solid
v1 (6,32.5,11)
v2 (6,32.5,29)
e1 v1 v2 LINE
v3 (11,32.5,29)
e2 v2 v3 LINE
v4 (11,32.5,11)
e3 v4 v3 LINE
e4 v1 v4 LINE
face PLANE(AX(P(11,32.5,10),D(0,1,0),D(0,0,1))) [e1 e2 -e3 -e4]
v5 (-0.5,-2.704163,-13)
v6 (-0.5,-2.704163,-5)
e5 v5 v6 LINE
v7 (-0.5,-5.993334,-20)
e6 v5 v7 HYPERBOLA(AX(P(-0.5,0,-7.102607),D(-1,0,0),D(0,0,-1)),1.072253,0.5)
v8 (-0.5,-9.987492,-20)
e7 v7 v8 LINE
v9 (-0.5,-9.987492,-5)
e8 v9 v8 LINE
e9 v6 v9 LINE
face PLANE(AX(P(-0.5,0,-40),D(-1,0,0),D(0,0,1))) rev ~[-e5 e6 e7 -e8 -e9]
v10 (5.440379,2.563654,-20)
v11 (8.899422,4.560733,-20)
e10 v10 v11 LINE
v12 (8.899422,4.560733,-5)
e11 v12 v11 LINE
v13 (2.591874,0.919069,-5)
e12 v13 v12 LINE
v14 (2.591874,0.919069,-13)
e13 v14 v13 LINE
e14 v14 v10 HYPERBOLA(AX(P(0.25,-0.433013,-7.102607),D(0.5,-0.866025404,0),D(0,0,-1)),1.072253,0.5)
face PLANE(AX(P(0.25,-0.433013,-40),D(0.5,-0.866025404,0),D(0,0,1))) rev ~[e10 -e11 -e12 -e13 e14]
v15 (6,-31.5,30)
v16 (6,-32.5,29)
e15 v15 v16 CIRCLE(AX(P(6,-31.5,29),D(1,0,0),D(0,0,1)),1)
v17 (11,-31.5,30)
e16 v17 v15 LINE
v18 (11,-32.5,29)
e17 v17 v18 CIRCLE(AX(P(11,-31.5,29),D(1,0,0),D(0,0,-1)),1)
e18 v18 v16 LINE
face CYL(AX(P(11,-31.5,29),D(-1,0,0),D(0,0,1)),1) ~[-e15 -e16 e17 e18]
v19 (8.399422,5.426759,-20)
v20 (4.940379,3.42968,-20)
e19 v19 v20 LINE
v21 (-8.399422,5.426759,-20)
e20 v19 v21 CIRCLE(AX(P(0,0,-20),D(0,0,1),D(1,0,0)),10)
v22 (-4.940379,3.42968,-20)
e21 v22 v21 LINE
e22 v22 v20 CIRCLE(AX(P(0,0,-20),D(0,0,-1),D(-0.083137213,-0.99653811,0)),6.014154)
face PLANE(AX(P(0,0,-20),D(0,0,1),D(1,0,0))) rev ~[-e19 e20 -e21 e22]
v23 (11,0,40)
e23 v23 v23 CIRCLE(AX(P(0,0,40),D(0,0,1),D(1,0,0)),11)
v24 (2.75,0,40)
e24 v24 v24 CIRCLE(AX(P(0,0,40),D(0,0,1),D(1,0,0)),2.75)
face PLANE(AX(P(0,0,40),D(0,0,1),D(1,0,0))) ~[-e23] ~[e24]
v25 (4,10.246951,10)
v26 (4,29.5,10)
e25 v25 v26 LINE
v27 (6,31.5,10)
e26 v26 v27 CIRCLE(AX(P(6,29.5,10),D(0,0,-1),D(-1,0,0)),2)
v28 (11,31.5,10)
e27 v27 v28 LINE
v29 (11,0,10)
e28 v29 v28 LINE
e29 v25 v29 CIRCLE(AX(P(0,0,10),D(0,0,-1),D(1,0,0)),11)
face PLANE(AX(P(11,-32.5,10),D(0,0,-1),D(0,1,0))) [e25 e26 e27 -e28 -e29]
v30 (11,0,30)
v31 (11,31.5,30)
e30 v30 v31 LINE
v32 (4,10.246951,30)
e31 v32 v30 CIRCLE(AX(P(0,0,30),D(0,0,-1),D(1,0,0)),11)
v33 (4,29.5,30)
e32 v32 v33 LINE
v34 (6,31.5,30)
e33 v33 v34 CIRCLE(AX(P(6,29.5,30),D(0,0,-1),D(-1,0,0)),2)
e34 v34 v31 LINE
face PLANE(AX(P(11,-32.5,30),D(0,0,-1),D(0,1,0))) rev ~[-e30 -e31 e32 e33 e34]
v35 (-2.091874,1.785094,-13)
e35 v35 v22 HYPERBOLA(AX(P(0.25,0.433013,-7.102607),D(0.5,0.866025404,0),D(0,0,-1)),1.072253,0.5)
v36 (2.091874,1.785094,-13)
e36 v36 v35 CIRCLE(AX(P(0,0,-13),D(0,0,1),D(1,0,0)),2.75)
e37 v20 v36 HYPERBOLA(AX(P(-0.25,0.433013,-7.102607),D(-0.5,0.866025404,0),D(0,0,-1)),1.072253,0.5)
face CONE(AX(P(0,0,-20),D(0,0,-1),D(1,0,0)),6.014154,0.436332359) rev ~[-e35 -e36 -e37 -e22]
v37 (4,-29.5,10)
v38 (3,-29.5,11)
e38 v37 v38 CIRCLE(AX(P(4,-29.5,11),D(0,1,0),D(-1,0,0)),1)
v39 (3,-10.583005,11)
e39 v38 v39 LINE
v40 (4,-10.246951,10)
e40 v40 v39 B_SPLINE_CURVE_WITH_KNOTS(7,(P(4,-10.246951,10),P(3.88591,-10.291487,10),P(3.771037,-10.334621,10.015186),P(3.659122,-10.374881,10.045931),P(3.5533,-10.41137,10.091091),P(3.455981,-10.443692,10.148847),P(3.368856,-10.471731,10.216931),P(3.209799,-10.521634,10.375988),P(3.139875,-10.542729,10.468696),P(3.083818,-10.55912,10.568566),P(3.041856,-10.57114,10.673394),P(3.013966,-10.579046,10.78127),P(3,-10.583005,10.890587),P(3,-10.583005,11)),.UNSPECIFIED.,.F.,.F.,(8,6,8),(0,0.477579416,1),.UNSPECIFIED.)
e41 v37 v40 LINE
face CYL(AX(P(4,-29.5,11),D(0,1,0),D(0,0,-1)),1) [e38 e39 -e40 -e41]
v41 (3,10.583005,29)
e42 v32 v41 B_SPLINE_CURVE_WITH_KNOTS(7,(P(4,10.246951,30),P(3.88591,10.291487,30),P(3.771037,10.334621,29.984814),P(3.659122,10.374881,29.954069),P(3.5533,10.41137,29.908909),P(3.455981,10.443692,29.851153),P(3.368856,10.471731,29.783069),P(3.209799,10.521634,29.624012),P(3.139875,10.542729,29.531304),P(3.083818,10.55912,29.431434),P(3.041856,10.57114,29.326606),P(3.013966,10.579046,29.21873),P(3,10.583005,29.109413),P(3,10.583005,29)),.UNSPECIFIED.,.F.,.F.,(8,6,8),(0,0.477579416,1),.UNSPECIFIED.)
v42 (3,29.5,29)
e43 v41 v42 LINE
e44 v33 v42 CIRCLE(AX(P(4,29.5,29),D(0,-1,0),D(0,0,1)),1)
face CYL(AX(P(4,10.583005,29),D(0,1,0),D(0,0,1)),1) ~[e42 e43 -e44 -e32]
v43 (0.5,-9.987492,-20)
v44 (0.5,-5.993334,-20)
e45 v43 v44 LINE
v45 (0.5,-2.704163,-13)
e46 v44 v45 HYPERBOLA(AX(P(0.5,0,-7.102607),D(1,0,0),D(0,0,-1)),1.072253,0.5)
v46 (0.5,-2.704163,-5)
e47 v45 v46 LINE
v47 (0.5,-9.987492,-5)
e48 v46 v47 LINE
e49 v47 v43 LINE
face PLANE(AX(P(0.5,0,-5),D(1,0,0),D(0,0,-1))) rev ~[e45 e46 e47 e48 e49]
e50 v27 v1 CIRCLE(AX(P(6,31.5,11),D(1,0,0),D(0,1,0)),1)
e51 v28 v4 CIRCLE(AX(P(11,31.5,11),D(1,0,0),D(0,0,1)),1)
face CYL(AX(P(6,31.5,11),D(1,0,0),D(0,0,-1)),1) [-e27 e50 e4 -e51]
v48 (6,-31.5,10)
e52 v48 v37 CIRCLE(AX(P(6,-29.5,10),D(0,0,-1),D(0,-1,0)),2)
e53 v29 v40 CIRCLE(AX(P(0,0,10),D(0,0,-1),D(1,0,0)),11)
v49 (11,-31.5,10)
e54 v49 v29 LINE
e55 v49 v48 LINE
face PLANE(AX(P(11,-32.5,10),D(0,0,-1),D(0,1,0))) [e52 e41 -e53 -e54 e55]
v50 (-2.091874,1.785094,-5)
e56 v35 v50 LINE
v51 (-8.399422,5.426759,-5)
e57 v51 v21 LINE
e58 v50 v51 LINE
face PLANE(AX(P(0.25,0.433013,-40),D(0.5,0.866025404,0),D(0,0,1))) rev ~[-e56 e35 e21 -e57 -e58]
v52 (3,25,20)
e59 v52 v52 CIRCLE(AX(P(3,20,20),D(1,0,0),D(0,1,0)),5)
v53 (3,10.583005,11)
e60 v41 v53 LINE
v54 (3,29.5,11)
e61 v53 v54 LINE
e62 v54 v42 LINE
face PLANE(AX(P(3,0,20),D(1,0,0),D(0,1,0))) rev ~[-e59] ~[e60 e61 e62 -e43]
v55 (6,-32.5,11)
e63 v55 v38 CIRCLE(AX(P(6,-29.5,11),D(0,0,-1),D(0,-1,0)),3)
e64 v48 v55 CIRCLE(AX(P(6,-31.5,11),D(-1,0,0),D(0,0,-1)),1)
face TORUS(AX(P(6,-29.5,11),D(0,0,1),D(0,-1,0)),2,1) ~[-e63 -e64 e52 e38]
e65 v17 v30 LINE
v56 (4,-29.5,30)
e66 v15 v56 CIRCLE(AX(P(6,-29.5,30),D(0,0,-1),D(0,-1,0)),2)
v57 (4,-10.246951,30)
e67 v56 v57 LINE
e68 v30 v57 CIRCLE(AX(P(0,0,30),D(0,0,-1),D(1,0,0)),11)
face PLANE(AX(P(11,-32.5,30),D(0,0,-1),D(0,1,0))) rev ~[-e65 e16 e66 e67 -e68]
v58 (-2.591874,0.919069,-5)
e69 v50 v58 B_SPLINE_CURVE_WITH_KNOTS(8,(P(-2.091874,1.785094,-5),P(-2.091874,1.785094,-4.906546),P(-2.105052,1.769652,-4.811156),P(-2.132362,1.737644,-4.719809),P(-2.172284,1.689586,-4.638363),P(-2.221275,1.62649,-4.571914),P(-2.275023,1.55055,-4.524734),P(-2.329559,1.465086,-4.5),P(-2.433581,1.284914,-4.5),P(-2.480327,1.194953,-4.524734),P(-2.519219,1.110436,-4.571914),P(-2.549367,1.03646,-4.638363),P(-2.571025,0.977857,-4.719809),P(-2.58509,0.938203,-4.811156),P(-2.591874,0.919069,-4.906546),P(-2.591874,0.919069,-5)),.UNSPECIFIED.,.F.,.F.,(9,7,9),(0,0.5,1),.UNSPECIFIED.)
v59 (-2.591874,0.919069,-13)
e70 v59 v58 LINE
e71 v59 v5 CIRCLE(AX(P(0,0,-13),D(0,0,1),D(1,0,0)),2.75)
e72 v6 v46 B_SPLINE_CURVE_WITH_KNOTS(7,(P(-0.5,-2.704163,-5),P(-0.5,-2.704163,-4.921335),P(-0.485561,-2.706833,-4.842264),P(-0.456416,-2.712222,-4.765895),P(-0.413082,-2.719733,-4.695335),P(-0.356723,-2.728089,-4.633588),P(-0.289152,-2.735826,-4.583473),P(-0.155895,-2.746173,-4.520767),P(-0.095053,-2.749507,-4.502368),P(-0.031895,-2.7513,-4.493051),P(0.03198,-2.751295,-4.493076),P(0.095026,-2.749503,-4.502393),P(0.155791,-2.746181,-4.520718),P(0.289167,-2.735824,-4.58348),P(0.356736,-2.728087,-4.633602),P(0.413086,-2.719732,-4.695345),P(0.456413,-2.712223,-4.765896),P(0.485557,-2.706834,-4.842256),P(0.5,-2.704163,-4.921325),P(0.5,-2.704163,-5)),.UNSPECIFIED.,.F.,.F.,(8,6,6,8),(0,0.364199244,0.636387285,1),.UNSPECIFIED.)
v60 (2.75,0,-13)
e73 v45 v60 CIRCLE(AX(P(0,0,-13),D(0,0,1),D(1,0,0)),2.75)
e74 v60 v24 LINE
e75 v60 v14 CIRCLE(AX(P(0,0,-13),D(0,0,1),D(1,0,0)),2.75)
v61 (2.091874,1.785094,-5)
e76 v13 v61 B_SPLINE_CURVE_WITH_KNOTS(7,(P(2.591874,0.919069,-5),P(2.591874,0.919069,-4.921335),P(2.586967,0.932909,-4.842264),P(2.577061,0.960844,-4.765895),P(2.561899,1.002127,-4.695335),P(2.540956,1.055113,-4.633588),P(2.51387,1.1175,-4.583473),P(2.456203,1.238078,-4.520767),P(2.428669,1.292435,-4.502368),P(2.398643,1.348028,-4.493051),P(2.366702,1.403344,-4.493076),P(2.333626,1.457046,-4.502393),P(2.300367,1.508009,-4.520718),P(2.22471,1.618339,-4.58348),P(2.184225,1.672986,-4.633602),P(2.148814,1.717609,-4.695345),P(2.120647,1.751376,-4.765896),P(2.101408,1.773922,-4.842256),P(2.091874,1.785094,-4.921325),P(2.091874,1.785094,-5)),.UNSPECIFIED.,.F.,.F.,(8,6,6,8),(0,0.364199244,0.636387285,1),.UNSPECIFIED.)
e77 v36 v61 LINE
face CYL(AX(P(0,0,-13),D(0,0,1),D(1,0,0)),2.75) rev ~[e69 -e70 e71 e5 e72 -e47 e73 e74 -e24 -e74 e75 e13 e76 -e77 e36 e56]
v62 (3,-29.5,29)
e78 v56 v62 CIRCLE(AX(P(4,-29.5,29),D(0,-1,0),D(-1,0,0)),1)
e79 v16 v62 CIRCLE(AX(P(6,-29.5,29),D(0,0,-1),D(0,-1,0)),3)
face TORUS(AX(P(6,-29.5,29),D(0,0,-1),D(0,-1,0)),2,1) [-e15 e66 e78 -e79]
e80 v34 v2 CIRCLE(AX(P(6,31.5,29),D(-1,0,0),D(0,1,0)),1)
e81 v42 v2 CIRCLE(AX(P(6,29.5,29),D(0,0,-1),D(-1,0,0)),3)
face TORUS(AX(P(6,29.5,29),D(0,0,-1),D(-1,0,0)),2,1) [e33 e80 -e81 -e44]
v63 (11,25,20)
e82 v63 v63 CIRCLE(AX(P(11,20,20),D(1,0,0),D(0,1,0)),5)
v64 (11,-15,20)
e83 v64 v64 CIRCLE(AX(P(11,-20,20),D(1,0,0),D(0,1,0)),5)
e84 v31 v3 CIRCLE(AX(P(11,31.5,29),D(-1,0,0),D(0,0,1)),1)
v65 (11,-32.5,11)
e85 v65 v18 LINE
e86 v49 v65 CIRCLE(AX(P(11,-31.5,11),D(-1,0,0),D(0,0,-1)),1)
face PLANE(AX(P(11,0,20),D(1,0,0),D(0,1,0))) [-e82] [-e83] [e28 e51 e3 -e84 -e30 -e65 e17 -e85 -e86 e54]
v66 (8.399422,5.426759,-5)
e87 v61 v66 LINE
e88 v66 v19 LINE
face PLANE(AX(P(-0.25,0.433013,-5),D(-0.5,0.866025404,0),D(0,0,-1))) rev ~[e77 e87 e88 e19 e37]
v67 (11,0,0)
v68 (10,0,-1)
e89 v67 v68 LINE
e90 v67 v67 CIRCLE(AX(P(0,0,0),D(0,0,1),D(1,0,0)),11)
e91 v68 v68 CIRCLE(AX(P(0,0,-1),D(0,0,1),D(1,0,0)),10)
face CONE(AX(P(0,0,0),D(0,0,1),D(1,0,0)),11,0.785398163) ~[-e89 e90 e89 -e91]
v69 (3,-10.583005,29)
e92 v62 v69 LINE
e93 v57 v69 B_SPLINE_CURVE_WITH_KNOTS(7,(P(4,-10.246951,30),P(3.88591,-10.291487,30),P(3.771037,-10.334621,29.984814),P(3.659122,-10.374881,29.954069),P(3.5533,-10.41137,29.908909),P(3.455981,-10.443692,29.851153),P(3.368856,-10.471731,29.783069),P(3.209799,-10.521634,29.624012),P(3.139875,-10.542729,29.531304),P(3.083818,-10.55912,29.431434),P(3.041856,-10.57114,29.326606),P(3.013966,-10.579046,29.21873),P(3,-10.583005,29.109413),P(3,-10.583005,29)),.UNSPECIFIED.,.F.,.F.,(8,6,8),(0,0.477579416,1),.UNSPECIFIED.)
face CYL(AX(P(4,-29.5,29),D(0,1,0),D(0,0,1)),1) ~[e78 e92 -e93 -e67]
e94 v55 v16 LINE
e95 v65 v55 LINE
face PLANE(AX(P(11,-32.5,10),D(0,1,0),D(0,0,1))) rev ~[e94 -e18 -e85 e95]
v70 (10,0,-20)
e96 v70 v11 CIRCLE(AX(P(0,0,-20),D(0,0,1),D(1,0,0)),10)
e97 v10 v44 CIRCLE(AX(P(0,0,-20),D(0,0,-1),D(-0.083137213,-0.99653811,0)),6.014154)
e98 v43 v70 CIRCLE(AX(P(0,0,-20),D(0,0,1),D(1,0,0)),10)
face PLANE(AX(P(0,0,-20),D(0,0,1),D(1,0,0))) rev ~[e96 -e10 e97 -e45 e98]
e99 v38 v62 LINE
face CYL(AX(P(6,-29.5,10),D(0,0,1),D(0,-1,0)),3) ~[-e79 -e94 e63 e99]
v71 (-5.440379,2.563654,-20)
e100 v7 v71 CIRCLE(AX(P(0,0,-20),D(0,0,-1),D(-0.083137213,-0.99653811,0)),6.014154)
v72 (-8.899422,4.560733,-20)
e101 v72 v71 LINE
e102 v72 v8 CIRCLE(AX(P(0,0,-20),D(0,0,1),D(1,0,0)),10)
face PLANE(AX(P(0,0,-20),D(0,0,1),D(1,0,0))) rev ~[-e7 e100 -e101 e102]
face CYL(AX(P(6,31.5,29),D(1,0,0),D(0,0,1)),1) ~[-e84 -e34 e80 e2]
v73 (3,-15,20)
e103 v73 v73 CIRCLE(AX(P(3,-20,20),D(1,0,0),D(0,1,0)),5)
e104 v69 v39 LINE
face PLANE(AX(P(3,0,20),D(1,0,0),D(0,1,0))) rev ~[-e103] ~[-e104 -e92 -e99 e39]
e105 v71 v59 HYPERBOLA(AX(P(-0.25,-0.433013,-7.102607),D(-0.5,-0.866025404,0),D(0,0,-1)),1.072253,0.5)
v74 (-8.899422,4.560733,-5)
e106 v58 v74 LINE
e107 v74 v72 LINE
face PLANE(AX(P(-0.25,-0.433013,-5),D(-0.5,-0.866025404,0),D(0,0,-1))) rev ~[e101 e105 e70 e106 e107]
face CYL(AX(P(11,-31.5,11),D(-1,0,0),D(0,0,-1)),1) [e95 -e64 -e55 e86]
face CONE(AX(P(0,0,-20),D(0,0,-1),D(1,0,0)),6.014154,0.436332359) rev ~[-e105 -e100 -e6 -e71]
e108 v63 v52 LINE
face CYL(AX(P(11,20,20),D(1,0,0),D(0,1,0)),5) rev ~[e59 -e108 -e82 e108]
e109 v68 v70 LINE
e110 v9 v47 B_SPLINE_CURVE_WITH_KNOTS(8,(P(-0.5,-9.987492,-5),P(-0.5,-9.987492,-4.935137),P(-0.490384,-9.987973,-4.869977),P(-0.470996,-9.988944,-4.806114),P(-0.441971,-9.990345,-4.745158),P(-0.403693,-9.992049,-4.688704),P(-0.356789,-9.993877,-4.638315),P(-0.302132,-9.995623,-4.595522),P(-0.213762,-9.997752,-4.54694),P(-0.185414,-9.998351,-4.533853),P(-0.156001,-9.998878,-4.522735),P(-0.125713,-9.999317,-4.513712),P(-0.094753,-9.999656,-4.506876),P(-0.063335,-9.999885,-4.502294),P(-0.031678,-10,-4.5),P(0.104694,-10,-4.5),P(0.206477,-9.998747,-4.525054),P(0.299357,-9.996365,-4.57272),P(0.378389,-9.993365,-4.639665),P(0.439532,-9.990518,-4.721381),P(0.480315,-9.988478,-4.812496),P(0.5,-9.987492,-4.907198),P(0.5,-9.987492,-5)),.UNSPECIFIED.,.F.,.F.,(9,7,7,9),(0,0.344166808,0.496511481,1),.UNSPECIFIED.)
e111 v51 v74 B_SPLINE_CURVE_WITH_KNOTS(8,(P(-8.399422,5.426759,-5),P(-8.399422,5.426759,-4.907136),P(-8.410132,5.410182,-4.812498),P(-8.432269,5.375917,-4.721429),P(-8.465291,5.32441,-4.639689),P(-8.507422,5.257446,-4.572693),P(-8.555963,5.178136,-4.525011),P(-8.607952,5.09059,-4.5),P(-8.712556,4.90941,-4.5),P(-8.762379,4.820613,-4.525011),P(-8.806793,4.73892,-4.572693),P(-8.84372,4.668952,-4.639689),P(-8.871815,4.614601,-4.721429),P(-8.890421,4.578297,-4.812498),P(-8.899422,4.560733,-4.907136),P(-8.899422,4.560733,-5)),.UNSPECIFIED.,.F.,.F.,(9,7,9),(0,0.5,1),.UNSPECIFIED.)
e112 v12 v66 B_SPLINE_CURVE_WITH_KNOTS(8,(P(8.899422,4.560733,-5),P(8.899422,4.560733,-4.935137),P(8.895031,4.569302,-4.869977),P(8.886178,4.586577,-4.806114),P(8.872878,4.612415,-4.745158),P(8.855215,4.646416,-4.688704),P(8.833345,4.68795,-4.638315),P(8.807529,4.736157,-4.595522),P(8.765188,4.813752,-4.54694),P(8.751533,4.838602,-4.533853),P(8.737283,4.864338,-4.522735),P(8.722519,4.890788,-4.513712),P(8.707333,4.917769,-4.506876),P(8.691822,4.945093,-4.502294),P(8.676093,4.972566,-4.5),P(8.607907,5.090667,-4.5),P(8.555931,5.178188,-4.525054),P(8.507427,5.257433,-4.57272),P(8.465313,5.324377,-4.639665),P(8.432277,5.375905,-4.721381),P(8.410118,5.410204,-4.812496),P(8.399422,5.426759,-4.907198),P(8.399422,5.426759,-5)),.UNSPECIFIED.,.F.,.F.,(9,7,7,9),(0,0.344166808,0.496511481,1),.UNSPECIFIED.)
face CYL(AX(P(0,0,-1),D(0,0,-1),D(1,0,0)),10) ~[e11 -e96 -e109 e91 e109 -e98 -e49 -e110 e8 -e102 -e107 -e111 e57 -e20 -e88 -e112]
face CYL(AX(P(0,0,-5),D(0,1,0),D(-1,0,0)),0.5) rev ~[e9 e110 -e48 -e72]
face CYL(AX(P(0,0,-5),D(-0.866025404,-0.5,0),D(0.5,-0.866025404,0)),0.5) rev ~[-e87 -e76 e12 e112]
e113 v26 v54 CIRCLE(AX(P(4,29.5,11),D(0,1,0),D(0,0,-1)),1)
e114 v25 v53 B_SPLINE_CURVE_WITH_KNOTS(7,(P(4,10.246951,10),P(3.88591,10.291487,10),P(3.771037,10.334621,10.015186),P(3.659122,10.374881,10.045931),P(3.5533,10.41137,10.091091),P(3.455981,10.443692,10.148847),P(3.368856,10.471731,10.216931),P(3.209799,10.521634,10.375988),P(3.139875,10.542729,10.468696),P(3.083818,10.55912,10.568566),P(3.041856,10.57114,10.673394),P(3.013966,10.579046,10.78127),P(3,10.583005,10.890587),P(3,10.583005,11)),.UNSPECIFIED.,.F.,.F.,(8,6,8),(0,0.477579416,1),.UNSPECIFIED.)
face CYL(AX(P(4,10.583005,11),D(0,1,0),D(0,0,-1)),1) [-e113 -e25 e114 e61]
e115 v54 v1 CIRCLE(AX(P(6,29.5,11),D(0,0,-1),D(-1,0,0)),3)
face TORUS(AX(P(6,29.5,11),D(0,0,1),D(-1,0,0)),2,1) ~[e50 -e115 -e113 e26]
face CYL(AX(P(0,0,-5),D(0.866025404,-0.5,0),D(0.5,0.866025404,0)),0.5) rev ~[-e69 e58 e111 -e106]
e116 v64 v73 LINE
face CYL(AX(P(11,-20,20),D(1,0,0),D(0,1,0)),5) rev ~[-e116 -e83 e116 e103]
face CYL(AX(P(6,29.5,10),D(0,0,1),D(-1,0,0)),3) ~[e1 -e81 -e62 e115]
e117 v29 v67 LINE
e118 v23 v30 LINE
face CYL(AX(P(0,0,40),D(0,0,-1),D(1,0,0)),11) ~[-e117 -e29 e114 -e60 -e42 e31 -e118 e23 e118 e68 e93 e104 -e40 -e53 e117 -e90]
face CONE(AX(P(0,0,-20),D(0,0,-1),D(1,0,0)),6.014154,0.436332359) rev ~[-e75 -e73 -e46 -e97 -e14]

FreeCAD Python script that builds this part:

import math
import FreeCAD as App
import Part
import Sketcher
Q = App.Units.Quantity


def edges_at(feature, points):
    """Names of the edges that pass closest to the given points."""
    edges = feature.Shape.Edges
    near = lambda p: min(range(len(edges)), key=lambda i: edges[i].distToShape(Part.Vertex(*p))[0])
    return sorted({f"Edge{near(p) + 1}" for p in points})

doc = App.newDocument("Part")
body = doc.addObject("PartDesign::Body", "Body")

sketch1 = body.newObject("Sketcher::SketchObject", "Sketch")
sketch1.AttachmentSupport = (doc.getObject("XZ_Plane"), [""])
sketch1.MapMode = "FlatFace"
sketch1.addGeometry([
    Part.LineSegment(App.Vector(11, 40, 0), App.Vector(2.75, 40, 0)),
    Part.LineSegment(App.Vector(2.75, 40, 0), App.Vector(2.75, -13, 0)),
    Part.LineSegment(App.Vector(2.75, -13, 0), App.Vector(6.014154, -20, 0)),
    Part.LineSegment(App.Vector(6.014154, -20, 0), App.Vector(10, -20, 0)),
    Part.LineSegment(App.Vector(10, -20, 0), App.Vector(10, -1, 0)),
    Part.LineSegment(App.Vector(10, -1, 0), App.Vector(11, 0, 0)),
    Part.LineSegment(App.Vector(11, 0, 0), App.Vector(11, 40, 0)),
], False)
sketch1.addConstraint([
    Sketcher.Constraint("Coincident", 0, 2, 1, 1),
    Sketcher.Constraint("Coincident", 1, 2, 2, 1),
    Sketcher.Constraint("Coincident", 2, 2, 3, 1),
    Sketcher.Constraint("Coincident", 3, 2, 4, 1),
    Sketcher.Constraint("Coincident", 4, 2, 5, 1),
    Sketcher.Constraint("Coincident", 5, 2, 6, 1),
    Sketcher.Constraint("Coincident", 6, 2, 0, 1),
    Sketcher.Constraint("Horizontal", 0),
    Sketcher.Constraint("Vertical", 1),
    Sketcher.Constraint("Horizontal", 3),
    Sketcher.Constraint("Vertical", 4),
    Sketcher.Constraint("Vertical", 6),
    Sketcher.Constraint("PointOnObject", 5, 2, -1),
    Sketcher.Constraint("DistanceY", 1, 2, 1, 1, Q("53 mm")),
    Sketcher.Constraint("DistanceY", 4, 1, 4, 2, Q("19 mm")),
    Sketcher.Constraint("DistanceY", 6, 1, 6, 2, Q("40 mm")),
    Sketcher.Constraint("Angle", 2, Q("-64.999997 deg")),
    Sketcher.Constraint("Angle", 5, Q("45 deg")),
    Sketcher.Constraint("DistanceY", 2, 2, -1, 1, Q("20 mm")),
    Sketcher.Constraint("DistanceX", -1, 1, 3, 2, Q("10 mm")),
    Sketcher.Constraint("DistanceX", 0, 2, 0, 1, Q("8.25 mm")),
])
revolution = body.newObject("PartDesign::Revolution", "Revolution")
revolution.Profile = sketch1
revolution.ReferenceAxis = (sketch1, ["V_Axis"])
revolution.Angle = 360

sketch2 = body.newObject("Sketcher::SketchObject", "Sketch001")
sketch2.AttachmentSupport = (doc.getObject("XZ_Plane"), [""])
sketch2.MapMode = "FlatFace"
sketch2.addGeometry([
    Part.LineSegment(App.Vector(0.5, -5, 0), App.Vector(0.5, -40, 0)),
    Part.LineSegment(App.Vector(0.5, -40, 0), App.Vector(-0.5, -40, 0)),
    Part.LineSegment(App.Vector(-0.5, -40, 0), App.Vector(-0.5, -5, 0)),
    Part.ArcOfCircle(Part.Circle(App.Vector(0, -5, 0), App.Vector(0, 0, 1), 0.5), math.radians(0), math.radians(180)),
], False)
sketch2.addConstraint([
    Sketcher.Constraint("Coincident", 0, 2, 1, 1),
    Sketcher.Constraint("Coincident", 1, 2, 2, 1),
    Sketcher.Constraint("Tangent", 2, 2, 3, 2),
    Sketcher.Constraint("Tangent", 3, 1, 0, 1),
    Sketcher.Constraint("Vertical", 0),
    Sketcher.Constraint("Horizontal", 1),
    Sketcher.Constraint("Vertical", 2),
    Sketcher.Constraint("PointOnObject", 3, 3, -2),
    Sketcher.Constraint("Radius", 3, Q("0.5 mm")),
    Sketcher.Constraint("DistanceY", 0, 2, 0, 1, Q("35 mm")),
    Sketcher.Constraint("DistanceY", 3, 3, -1, 1, Q("5 mm")),
])
pocket1 = body.newObject("PartDesign::Pocket", "Pocket")
pocket1.Profile = sketch2
pocket1.Type = "ThroughAll"
pocket1.Reversed = True
doc.recompute()

polarpattern = body.newObject("PartDesign::PolarPattern", "PolarPattern")
polarpattern.Originals = [pocket1]
polarpattern.Axis = (doc.getObject("Z_Axis"), [""])
polarpattern.Angle = 360
polarpattern.Occurrences = 3
body.Tip = polarpattern

sketch3 = body.newObject("Sketcher::SketchObject", "Sketch002")
sketch3.AttachmentSupport = (doc.getObject("YZ_Plane"), [""])
sketch3.MapMode = "FlatFace"
sketch3.AttachmentOffset = App.Placement(App.Vector(0, 0, 11), App.Rotation())
sketch3.addGeometry([
    Part.LineSegment(App.Vector(-32.5, 30, 0), App.Vector(-32.5, 10, 0)),
    Part.LineSegment(App.Vector(-32.5, 10, 0), App.Vector(32.5, 10, 0)),
    Part.LineSegment(App.Vector(32.5, 10, 0), App.Vector(32.5, 30, 0)),
    Part.LineSegment(App.Vector(32.5, 30, 0), App.Vector(-32.5, 30, 0)),
    Part.Circle(App.Vector(-20, 20, 0), App.Vector(0, 0, 1), 5),
    Part.Circle(App.Vector(20, 20, 0), App.Vector(0, 0, 1), 5),
], False)
sketch3.addConstraint([
    Sketcher.Constraint("Coincident", 0, 2, 1, 1),
    Sketcher.Constraint("Coincident", 1, 2, 2, 1),
    Sketcher.Constraint("Coincident", 2, 2, 3, 1),
    Sketcher.Constraint("Coincident", 3, 2, 0, 1),
    Sketcher.Constraint("Vertical", 0),
    Sketcher.Constraint("Horizontal", 1),
    Sketcher.Constraint("Vertical", 2),
    Sketcher.Constraint("Horizontal", 3),
    Sketcher.Constraint("Equal", 4, 5),
    Sketcher.Constraint("Symmetric", 4, 3, 5, 3, -2),
    Sketcher.Constraint("Diameter", 4, Q("10 mm")),
    Sketcher.Constraint("DistanceX", 1, 1, 1, 2, Q("65 mm")),
    Sketcher.Constraint("DistanceY", 0, 2, 0, 1, Q("20 mm")),
    Sketcher.Constraint("DistanceX", 4, 3, -1, 1, Q("20 mm")),
    Sketcher.Constraint("DistanceY", -1, 1, 4, 3, Q("20 mm")),
    Sketcher.Constraint("DistanceY", -1, 1, 0, 2, Q("10 mm")),
    Sketcher.Constraint("DistanceX", 0, 2, -1, 1, Q("32.5 mm")),
])
pad1 = body.newObject("PartDesign::Pad", "Pad")
pad1.Profile = sketch3
pad1.Length = 8
pad1.Reversed = True
doc.recompute()

fillet = body.newObject("PartDesign::Fillet", "Fillet")
fillet.Base = (pad1, edges_at(pad1, [(3, -32.5, 20), (3, 32.5, 20)]))
fillet.Radius = 3
doc.recompute()

fillet2 = body.newObject("PartDesign::Fillet", "Fillet001")
fillet2.Base = (fillet, edges_at(fillet, [
    (3, 20.042, 30),
    (3, 20.042, 10),
    (3, -20.042, 10),
    (3, -20.042, 30),
]))
fillet2.Radius = 1

doc.recompute()
